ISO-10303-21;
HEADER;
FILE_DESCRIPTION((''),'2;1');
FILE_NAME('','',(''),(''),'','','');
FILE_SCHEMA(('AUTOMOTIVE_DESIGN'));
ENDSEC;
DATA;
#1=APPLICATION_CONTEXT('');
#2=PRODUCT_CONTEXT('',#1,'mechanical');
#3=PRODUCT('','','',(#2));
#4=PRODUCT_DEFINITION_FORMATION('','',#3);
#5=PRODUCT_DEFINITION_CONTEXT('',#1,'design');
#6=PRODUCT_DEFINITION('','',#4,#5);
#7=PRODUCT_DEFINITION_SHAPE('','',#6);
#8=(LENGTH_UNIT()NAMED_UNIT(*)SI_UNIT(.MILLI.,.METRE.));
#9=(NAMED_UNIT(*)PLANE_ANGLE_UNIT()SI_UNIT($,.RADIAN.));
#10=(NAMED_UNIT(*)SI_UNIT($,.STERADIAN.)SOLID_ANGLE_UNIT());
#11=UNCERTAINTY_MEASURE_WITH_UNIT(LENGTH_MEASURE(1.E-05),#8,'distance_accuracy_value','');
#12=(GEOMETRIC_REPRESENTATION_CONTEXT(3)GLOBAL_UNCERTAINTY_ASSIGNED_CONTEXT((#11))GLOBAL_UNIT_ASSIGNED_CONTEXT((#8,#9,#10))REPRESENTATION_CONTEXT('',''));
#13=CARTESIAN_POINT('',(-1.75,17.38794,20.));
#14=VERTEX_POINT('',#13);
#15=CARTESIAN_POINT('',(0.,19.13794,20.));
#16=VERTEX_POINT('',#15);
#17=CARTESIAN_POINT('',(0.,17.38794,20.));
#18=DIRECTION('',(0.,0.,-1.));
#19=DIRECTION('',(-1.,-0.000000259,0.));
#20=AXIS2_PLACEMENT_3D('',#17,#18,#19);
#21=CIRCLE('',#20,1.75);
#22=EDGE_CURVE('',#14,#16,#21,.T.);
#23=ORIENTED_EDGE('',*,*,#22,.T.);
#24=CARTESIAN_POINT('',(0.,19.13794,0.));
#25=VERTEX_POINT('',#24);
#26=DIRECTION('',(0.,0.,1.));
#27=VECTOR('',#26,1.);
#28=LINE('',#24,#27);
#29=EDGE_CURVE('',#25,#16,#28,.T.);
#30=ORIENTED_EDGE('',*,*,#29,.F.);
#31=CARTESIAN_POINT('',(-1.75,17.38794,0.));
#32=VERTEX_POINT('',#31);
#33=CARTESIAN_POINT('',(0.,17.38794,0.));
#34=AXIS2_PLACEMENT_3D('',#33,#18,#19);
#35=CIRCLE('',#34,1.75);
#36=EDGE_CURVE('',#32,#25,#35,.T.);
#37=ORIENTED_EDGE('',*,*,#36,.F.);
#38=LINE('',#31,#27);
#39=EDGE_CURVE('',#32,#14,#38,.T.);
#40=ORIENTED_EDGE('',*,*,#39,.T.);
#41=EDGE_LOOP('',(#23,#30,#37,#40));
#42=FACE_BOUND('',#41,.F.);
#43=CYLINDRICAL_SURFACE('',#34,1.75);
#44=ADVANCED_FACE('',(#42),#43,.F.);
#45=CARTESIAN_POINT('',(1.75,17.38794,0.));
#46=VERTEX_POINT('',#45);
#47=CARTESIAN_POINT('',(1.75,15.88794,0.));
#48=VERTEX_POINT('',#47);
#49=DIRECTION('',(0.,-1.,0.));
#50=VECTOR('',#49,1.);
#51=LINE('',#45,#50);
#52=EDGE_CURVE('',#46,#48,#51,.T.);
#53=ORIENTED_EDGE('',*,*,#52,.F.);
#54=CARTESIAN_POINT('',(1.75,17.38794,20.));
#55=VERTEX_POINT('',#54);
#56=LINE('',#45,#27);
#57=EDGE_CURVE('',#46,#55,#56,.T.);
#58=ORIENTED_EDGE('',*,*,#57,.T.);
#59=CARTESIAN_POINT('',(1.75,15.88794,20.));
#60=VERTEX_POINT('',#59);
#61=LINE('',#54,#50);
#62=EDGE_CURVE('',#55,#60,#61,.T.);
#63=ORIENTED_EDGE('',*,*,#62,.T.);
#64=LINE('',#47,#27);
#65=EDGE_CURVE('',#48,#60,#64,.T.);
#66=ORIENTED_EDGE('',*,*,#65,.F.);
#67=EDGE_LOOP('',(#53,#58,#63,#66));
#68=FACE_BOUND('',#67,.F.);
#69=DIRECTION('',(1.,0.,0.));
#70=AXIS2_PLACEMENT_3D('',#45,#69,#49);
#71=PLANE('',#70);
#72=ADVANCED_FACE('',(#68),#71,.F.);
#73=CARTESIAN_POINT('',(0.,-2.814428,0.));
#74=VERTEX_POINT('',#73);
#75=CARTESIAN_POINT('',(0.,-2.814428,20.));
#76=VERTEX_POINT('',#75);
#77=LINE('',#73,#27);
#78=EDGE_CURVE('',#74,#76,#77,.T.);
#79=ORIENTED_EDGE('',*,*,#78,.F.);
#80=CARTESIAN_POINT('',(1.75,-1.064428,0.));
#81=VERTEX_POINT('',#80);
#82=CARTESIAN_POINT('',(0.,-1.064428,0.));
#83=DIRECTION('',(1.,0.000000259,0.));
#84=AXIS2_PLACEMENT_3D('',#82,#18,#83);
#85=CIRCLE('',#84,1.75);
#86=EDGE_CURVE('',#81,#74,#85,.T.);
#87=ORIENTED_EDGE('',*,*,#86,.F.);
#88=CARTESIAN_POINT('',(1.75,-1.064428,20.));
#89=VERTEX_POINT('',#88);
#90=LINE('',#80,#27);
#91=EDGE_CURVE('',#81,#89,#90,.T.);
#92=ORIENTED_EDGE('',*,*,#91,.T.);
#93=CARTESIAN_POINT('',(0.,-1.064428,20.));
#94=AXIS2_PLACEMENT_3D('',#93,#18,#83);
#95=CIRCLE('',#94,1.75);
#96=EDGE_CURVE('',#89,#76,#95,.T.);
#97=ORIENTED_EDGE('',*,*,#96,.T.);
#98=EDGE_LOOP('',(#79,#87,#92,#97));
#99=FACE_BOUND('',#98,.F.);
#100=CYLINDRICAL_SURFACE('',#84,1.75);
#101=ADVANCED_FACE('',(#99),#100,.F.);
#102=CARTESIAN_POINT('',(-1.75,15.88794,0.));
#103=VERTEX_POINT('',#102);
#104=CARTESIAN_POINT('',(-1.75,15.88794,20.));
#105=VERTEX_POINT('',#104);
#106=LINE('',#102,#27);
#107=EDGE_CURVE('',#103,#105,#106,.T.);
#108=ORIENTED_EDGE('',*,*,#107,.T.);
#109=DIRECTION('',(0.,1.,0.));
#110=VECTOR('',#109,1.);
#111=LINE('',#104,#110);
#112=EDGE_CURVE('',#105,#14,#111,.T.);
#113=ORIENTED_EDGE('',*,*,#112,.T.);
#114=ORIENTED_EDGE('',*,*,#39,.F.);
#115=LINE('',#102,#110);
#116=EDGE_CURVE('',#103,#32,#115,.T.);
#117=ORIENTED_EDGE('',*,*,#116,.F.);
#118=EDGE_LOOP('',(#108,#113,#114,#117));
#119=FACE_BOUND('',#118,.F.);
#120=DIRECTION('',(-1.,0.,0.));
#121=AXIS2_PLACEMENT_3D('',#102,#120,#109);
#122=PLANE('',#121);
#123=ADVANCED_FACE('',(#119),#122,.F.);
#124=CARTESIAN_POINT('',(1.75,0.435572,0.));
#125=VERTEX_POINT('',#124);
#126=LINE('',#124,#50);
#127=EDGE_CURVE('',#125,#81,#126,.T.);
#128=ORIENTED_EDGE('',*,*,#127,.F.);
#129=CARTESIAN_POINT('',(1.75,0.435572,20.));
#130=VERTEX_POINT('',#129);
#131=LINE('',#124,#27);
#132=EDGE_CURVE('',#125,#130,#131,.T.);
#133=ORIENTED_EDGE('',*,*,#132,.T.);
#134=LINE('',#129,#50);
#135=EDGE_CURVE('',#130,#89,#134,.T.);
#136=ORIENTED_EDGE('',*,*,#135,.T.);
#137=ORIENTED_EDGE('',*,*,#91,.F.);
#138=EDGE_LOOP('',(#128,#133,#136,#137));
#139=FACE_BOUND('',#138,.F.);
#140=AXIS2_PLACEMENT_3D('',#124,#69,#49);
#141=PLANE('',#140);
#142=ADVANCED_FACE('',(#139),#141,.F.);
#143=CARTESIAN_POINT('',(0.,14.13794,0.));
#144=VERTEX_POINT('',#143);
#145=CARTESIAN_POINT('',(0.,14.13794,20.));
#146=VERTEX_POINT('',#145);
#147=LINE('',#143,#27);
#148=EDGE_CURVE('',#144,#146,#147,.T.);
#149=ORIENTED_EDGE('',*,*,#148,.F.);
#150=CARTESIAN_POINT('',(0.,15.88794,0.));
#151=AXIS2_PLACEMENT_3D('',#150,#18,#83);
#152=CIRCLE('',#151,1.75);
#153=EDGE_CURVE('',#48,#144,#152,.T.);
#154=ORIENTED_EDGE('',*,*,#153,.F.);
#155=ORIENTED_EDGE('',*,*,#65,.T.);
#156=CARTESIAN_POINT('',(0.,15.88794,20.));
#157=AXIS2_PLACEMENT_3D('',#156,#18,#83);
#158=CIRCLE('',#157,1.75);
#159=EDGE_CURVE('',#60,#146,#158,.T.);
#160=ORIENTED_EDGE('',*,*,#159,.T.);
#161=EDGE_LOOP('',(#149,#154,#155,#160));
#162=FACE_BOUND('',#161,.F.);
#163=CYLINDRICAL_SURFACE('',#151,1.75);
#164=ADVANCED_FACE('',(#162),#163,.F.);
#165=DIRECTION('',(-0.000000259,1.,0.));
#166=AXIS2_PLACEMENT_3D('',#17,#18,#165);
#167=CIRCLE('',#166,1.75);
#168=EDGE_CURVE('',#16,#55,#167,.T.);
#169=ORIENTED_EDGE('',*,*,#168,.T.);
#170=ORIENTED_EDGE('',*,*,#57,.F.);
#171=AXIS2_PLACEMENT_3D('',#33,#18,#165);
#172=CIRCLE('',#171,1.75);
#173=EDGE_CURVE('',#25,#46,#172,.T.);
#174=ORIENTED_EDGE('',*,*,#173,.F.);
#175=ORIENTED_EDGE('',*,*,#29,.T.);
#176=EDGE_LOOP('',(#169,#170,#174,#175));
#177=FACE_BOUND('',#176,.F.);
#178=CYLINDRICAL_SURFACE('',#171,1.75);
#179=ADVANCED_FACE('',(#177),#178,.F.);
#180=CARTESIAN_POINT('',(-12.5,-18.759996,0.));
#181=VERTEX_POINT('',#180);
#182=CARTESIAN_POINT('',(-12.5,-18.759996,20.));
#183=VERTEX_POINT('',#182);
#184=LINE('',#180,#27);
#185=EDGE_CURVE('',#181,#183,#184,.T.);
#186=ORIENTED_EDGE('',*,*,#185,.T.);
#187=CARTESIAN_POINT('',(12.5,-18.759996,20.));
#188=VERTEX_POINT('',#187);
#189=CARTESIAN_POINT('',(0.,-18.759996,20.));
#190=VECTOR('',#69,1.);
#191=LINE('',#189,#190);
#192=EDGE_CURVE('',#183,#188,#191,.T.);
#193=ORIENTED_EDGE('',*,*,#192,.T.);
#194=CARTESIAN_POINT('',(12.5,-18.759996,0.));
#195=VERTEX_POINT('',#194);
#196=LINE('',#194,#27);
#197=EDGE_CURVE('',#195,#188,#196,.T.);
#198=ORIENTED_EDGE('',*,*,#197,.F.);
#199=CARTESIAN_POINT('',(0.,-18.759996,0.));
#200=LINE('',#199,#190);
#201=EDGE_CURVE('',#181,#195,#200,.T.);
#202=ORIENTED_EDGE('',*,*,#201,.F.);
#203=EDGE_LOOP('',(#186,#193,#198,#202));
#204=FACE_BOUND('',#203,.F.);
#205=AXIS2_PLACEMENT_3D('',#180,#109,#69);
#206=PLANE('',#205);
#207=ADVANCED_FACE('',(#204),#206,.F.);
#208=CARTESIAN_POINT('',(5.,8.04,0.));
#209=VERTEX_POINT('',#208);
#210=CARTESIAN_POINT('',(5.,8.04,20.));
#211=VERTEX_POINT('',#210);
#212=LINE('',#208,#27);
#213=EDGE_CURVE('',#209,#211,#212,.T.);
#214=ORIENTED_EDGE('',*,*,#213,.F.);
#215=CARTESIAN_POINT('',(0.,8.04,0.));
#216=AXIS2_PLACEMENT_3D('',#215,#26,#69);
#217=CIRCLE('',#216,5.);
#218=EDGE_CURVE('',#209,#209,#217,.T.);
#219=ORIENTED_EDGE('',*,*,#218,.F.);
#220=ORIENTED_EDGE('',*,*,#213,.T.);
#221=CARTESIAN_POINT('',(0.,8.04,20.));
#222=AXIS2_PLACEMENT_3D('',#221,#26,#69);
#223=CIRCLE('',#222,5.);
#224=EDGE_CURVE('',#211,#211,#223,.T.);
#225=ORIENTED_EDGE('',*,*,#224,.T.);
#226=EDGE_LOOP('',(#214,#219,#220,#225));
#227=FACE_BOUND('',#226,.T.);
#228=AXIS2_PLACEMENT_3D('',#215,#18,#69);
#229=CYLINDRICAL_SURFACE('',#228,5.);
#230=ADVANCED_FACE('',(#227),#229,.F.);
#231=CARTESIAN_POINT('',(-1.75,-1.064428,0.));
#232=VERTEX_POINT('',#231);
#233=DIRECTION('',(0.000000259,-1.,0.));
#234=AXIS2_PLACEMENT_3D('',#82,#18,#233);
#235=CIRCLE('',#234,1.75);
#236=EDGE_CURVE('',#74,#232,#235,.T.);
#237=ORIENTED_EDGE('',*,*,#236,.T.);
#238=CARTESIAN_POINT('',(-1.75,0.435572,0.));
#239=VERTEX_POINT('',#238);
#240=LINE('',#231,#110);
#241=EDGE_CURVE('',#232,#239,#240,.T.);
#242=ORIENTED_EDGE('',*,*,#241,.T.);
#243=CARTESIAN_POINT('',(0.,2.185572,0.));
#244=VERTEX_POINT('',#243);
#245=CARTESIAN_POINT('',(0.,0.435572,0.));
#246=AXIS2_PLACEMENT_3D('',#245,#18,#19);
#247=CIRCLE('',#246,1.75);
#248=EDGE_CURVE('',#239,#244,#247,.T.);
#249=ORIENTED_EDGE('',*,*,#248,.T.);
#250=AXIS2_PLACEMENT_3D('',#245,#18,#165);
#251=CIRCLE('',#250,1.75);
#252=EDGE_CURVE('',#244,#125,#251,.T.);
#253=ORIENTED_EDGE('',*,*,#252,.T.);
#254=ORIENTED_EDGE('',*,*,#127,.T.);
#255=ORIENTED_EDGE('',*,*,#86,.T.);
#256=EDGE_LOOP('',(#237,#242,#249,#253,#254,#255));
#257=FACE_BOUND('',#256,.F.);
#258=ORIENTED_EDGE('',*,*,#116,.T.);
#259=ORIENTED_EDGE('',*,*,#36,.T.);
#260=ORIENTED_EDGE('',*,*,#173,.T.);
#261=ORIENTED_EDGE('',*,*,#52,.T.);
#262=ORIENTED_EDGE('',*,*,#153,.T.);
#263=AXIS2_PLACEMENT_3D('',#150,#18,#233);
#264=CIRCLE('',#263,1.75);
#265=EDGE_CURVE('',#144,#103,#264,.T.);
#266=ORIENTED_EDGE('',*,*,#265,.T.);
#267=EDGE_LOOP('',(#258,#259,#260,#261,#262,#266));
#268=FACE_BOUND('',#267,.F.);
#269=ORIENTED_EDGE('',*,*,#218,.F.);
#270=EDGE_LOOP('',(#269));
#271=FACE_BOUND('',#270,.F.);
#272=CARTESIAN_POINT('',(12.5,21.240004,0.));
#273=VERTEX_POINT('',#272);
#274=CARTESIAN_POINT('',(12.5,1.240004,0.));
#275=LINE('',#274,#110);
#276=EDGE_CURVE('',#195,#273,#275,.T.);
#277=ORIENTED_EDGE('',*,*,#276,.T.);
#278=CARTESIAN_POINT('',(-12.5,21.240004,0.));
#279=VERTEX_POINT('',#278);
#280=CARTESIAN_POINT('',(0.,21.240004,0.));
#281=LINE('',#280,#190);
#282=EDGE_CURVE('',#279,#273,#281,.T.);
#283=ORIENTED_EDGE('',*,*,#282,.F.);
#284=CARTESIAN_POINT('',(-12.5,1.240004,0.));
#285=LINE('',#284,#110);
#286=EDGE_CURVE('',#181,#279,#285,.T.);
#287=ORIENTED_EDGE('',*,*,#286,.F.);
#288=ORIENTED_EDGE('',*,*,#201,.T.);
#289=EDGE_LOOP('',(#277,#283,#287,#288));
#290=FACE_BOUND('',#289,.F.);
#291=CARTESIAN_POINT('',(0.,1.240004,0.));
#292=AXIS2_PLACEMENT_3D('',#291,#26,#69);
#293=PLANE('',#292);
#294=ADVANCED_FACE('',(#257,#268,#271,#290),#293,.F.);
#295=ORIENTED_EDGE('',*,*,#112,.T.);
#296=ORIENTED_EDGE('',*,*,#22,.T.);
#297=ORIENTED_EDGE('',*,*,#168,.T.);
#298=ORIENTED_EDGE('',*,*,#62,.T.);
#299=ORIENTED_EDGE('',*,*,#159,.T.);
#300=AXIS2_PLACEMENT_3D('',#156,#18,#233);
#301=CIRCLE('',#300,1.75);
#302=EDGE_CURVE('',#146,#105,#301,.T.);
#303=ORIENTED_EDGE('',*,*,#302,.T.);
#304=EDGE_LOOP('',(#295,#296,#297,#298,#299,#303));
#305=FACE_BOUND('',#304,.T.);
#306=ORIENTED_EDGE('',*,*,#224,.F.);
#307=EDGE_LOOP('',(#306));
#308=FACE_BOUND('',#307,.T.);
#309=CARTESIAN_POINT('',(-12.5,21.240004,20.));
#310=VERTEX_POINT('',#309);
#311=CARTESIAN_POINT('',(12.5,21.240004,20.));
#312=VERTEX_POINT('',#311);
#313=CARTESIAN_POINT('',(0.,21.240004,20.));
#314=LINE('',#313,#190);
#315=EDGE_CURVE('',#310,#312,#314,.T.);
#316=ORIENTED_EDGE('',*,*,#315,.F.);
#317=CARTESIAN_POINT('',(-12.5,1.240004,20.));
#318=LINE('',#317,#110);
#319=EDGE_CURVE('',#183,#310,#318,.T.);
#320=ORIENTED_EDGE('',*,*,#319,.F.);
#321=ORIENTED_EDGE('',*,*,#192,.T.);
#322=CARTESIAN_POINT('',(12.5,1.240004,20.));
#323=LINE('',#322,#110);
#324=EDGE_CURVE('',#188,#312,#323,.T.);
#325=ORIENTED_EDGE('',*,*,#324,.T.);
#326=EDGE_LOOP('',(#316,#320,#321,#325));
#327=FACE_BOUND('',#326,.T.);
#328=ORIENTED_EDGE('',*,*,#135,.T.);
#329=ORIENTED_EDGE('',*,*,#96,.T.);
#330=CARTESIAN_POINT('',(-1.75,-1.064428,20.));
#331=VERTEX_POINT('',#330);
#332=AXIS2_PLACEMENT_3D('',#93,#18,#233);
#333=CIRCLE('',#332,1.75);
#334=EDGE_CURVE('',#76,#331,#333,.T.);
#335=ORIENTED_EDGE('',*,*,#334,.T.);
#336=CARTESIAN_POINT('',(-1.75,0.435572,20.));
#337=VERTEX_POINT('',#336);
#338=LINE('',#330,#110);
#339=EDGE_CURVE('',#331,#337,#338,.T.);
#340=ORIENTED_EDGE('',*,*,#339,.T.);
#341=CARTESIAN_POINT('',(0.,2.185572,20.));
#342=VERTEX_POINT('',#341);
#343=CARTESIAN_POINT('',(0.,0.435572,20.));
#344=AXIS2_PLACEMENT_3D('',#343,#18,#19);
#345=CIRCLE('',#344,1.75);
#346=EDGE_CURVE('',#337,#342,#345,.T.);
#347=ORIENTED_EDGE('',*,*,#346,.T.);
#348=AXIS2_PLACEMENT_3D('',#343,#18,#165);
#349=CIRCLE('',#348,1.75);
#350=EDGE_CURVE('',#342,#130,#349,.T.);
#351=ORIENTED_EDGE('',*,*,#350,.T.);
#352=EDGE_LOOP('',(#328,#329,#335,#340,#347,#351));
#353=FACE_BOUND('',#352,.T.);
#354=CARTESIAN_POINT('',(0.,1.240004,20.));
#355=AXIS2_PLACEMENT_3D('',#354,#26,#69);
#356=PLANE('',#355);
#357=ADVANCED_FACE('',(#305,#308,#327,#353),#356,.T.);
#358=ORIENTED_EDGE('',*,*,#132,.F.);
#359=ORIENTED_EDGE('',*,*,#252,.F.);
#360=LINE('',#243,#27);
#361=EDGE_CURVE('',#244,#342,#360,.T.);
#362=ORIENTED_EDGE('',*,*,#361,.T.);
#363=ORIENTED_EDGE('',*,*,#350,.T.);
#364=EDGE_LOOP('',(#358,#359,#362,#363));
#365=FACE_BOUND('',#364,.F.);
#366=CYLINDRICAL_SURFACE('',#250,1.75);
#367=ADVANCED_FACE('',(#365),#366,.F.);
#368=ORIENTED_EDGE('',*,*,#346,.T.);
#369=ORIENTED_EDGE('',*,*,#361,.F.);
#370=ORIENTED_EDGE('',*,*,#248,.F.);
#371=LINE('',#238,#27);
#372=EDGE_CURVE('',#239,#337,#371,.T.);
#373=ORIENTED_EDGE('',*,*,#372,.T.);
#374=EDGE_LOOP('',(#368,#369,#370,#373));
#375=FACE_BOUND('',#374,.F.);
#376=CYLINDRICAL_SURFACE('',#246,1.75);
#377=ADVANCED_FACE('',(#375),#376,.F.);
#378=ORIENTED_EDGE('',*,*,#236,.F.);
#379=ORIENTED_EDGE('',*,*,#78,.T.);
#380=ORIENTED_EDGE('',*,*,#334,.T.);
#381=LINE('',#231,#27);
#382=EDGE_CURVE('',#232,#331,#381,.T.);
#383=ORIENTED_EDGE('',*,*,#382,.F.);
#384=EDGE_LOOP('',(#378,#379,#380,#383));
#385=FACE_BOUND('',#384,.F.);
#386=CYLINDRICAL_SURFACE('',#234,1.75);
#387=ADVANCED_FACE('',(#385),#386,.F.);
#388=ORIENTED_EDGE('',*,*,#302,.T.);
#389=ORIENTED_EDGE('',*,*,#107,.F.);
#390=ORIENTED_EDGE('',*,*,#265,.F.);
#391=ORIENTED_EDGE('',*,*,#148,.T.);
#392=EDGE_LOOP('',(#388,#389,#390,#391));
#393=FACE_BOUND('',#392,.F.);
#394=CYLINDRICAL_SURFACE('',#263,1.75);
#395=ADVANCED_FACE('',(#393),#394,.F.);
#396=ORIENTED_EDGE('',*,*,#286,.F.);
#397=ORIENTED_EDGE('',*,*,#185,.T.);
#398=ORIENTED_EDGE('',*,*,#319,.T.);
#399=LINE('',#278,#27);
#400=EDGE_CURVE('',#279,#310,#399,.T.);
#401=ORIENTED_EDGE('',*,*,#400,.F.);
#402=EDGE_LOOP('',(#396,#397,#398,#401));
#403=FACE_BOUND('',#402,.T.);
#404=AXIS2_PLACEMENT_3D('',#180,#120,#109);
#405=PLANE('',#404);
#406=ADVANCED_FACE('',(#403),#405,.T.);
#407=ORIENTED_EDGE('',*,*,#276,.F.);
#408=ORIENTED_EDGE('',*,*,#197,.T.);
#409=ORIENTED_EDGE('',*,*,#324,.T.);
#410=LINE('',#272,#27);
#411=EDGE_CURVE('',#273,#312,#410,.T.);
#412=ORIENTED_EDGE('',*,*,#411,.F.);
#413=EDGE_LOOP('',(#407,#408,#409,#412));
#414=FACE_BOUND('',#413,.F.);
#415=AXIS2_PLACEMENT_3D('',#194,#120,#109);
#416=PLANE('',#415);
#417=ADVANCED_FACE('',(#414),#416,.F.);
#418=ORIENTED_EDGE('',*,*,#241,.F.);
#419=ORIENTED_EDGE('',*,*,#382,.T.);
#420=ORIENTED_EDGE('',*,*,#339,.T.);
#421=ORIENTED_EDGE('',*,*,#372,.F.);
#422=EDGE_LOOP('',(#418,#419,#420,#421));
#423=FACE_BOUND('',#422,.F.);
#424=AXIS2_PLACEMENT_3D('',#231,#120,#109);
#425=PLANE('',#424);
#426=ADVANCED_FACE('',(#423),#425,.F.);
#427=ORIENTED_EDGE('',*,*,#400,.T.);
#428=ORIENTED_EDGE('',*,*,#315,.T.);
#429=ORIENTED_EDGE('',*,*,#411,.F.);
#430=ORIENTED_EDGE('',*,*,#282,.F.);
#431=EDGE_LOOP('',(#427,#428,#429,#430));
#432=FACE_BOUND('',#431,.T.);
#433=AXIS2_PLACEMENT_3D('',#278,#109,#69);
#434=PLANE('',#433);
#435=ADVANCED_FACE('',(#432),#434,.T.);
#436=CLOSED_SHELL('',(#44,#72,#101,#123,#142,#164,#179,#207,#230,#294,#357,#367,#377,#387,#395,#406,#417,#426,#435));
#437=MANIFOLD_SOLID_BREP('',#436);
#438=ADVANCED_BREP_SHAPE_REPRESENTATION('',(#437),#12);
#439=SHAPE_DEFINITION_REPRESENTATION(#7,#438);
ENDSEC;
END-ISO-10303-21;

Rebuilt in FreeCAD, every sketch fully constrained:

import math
import FreeCAD as App
import Part
import Sketcher

V = App.Vector


def add_polygon(sketch, points):
    """Adds a closed chain of lines whose ends are joined by coincident constraints."""
    first, n = sketch.GeometryCount, len(points)
    for a, b in zip(points, points[1:] + points[:1]):
        sketch.addGeometry(Part.LineSegment(App.Vector(*a, 0), App.Vector(*b, 0)), False)
    for i in range(n):
        sketch.addConstraint(Sketcher.Constraint("Coincident", first + i, 2, first + (i + 1) % n, 1))

doc = App.newDocument("Part")
body = doc.addObject("PartDesign::Body", "Body")

sketch1 = doc.addObject("Sketcher::SketchObject", "Sketch")
body.addObject(sketch1)
sketch1.AttachmentSupport = (doc.XY_Plane, [""])
sketch1.MapMode = "FlatFace"
add_polygon(sketch1, [(-12.5, 21.2), (-12.5, -18.8), (12.5, -18.8), (12.5, 21.2)])
sketch1.addGeometry(Part.ArcOfCircle(Part.Circle(V(0, 0.4, 0), V(0, 0, 1), 1.7), math.radians(0), math.radians(90)), False)
sketch1.addGeometry(Part.LineSegment(V(1.8, 0.4, 0), V(1.8, -1.1, 0)), False)
sketch1.addGeometry(Part.ArcOfCircle(Part.Circle(V(0, -1.1, 0), V(0, 0, 1), 1.7), math.radians(-90), math.radians(0)), False)
sketch1.addGeometry(Part.ArcOfCircle(Part.Circle(V(0, -1.1, 0), V(0, 0, 1), 1.7), math.radians(180), math.radians(270)), False)
sketch1.addGeometry(Part.LineSegment(V(-1.8, -1.1, 0), V(-1.8, 0.4, 0)), False)
sketch1.addGeometry(Part.ArcOfCircle(Part.Circle(V(0, 0.4, 0), V(0, 0, 1), 1.7), math.radians(90), math.radians(180)), False)
sketch1.addGeometry(Part.Circle(V(0, 8, 0), V(0, 0, 1), 5), False)
sketch1.addGeometry(Part.ArcOfCircle(Part.Circle(V(0, 17.4, 0), V(0, 0, 1), 1.7), math.radians(0), math.radians(90)), False)
sketch1.addGeometry(Part.LineSegment(V(1.8, 17.4, 0), V(1.8, 15.9, 0)), False)
sketch1.addGeometry(Part.ArcOfCircle(Part.Circle(V(0, 15.9, 0), V(0, 0, 1), 1.7), math.radians(-90), math.radians(0)), False)
sketch1.addGeometry(Part.ArcOfCircle(Part.Circle(V(0, 15.9, 0), V(0, 0, 1), 1.7), math.radians(180), math.radians(270)), False)
sketch1.addGeometry(Part.LineSegment(V(-1.8, 15.9, 0), V(-1.8, 17.4, 0)), False)
sketch1.addGeometry(Part.ArcOfCircle(Part.Circle(V(0, 17.4, 0), V(0, 0, 1), 1.7), math.radians(90), math.radians(180)), False)
sketch1.addConstraint([
    Sketcher.Constraint("Tangent", 4, 1, 5, 1),
    Sketcher.Constraint("Tangent", 5, 2, 6, 2),
    Sketcher.Constraint("Tangent", 6, 1, 7, 2),
    Sketcher.Constraint("Tangent", 7, 1, 8, 1),
    Sketcher.Constraint("Tangent", 8, 2, 9, 2),
    Sketcher.Constraint("Tangent", 9, 1, 4, 2),
    Sketcher.Constraint("Tangent", 11, 1, 12, 1),
    Sketcher.Constraint("Tangent", 12, 2, 13, 2),
    Sketcher.Constraint("Tangent", 13, 1, 14, 2),
    Sketcher.Constraint("Tangent", 14, 1, 15, 1),
    Sketcher.Constraint("Tangent", 15, 2, 16, 2),
    Sketcher.Constraint("Tangent", 16, 1, 11, 2),
    Sketcher.Constraint("Vertical", 0),
    Sketcher.Constraint("Horizontal", 1),
    Sketcher.Constraint("Vertical", 2),
    Sketcher.Constraint("Horizontal", 3),
    Sketcher.Constraint("Vertical", 5),
    Sketcher.Constraint("Vertical", 8),
    Sketcher.Constraint("Vertical", 12),
    Sketcher.Constraint("Vertical", 15),
    Sketcher.Constraint("Equal", 4, 6),
    Sketcher.Constraint("Equal", 6, 7),
    Sketcher.Constraint("Equal", 9, 11),
    Sketcher.Constraint("Equal", 11, 13),
    Sketcher.Constraint("Equal", 13, 14),
    Sketcher.Constraint("PointOnObject", 4, 3, -2),
    Sketcher.Constraint("PointOnObject", 10, 3, -2),
    Sketcher.Constraint("PointOnObject", 11, 3, -2),
    Sketcher.Constraint("PointOnObject", 6, 1, -2),
    Sketcher.Constraint("PointOnObject", 9, 1, -2),
    Sketcher.Constraint("PointOnObject", 13, 1, -2),
    Sketcher.Constraint("PointOnObject", 16, 1, -2),
    Sketcher.Constraint("Equal", 8, 12),
    Sketcher.Constraint("Diameter", 10, 10.0),
    Sketcher.Constraint("DistanceX", 1, 1, 1, 2, 25.0),
    Sketcher.Constraint("DistanceY", 0, 2, 0, 1, 40.0),
    Sketcher.Constraint("Radius", 4, 1.75),
    Sketcher.Constraint("DistanceY", 5, 2, 5, 1, 1.5),
    Sketcher.Constraint("DistanceX", 0, 2, -1, 1, 12.5),
    Sketcher.Constraint("DistanceY", -1, 1, 10, 3, 8.04),
    Sketcher.Constraint("DistanceY", 6, 3, -1, 1, 1.064428),
    Sketcher.Constraint("DistanceY", -1, 1, 11, 3, 17.38794),
    Sketcher.Constraint("DistanceY", 0, 2, 9, 3, 19.195568),
])
pad1 = doc.addObject("PartDesign::Pad", "Pad")
body.addObject(pad1)
pad1.Profile = sketch1
pad1.Length = 20

doc.recompute()
